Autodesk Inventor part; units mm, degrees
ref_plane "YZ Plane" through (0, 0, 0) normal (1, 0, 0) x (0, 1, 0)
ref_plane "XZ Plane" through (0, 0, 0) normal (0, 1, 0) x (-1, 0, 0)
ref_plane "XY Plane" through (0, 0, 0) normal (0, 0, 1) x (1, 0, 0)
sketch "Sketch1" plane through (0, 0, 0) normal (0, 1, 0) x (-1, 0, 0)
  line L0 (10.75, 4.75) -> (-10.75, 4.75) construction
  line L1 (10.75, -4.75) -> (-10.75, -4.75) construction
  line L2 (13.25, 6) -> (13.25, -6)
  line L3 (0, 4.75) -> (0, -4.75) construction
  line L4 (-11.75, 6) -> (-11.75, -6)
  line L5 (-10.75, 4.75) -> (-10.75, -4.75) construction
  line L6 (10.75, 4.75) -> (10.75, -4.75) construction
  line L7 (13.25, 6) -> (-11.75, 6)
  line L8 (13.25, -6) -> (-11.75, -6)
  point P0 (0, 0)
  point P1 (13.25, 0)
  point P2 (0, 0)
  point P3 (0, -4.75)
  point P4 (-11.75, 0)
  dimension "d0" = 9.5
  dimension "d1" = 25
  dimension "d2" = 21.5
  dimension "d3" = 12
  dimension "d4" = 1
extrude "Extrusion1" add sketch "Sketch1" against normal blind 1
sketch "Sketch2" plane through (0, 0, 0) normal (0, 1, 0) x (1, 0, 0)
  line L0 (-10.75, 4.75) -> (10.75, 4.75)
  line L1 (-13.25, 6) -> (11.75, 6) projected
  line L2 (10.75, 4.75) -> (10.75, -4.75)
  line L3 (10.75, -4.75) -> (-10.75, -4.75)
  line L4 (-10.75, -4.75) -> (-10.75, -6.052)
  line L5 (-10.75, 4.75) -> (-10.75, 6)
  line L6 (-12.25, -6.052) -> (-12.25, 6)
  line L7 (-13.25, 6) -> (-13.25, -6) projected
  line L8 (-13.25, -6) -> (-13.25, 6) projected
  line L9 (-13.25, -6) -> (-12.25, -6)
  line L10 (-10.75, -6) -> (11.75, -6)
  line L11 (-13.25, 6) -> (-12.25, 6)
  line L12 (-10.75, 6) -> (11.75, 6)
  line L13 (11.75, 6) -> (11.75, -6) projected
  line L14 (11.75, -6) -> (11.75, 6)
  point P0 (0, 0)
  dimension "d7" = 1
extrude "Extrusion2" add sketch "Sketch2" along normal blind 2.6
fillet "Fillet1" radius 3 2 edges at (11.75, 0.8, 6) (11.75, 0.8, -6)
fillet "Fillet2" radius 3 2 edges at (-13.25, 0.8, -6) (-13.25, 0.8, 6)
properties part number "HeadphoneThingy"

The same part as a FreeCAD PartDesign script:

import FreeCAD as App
import Part
import Sketcher

V = App.Vector


def edges_at(feature, points):
    """Names of the edges that pass closest to the given points."""
    edges = feature.Shape.Edges
    near = lambda p: min(range(len(edges)), key=lambda i: edges[i].distToShape(Part.Vertex(*p))[0])
    return sorted({f"Edge{near(p) + 1}" for p in points})


def add_polygon(sketch, points):
    """Adds a closed chain of lines whose ends are joined by coincident constraints."""
    first, n = sketch.GeometryCount, len(points)
    for a, b in zip(points, points[1:] + points[:1]):
        sketch.addGeometry(Part.LineSegment(App.Vector(*a, 0), App.Vector(*b, 0)), False)
    for i in range(n):
        sketch.addConstraint(Sketcher.Constraint("Coincident", first + i, 2, first + (i + 1) % n, 1))

doc = App.newDocument("Part")
params = doc.addObject("Spreadsheet::Sheet", "Params")
for row, (alias, value) in enumerate([
    ("sketch1_width", "25 mm"),
    ("sketch1_height", "12 mm"),
    ("pad1_length", "1 mm"),
    ("sketch2_width", "1 mm"),
    ("sketch2_height", "12 mm"),
    ("sketch2_width2", "21.5 mm"),
    ("sketch2_height2", "9.5 mm"),
    ("pad2_length", "2.6 mm"),
    ("fillet_radius", "3 mm"),
    ("fillet2_radius", "3 mm"),
], start=1):
    params.set(f"A{row}", alias)
    params.set(f"B{row}", "=" + value)
    params.setAlias(f"B{row}", alias)

body = doc.addObject("PartDesign::Body", "Body")

sketch1 = doc.addObject("Sketcher::SketchObject", "Sketch")
body.addObject(sketch1)
sketch1.AttachmentSupport = (doc.XZ_Plane, [""])
sketch1.MapMode = "FlatFace"
add_polygon(sketch1, [(-13.25, -6), (-13.25, 6), (11.75, 6), (11.75, -6)])
sketch1.addConstraint([
    Sketcher.Constraint("Vertical", 0),
    Sketcher.Constraint("Horizontal", 1),
    Sketcher.Constraint("Vertical", 2),
    Sketcher.Constraint("Horizontal", 3),
    Sketcher.Constraint("DistanceX", 1, 1, 1, 2, 25.0),
    Sketcher.Constraint("DistanceY", 0, 1, 0, 2, 12.0),
    Sketcher.Constraint("DistanceY", -1, 1, 0, 2, 6.0),
    Sketcher.Constraint("DistanceX", 0, 2, -1, 1, 13.25),
])
sketch1.setExpression("Constraints[8]", "Params.sketch1_width")
sketch1.setExpression("Constraints[9]", "Params.sketch1_height")
pad1 = doc.addObject("PartDesign::Pad", "Pad")
body.addObject(pad1)
pad1.Profile = sketch1
pad1.setExpression("Length", "Params.pad1_length")

sketch2 = doc.addObject("Sketcher::SketchObject", "Sketch001")
body.addObject(sketch2)
sketch2.AttachmentSupport = (doc.XZ_Plane, [""])
sketch2.MapMode = "FlatFace"
add_polygon(sketch2, [(-10.75, -6), (-10.75, -4.75), (10.75, -4.75), (10.75, 4.75), (-10.75, 4.75), (-10.75, 6), (11.75, 6), (11.75, -6)])
add_polygon(sketch2, [(-12.25, 6), (-12.25, -6), (-13.25, -6), (-13.25, 6)])
sketch2.addConstraint([
    Sketcher.Constraint("Vertical", 0),
    Sketcher.Constraint("Horizontal", 1),
    Sketcher.Constraint("Vertical", 2),
    Sketcher.Constraint("Horizontal", 3),
    Sketcher.Constraint("Vertical", 4),
    Sketcher.Constraint("Horizontal", 5),
    Sketcher.Constraint("Vertical", 6),
    Sketcher.Constraint("Horizontal", 7),
    Sketcher.Constraint("Vertical", 8),
    Sketcher.Constraint("Horizontal", 9),
    Sketcher.Constraint("Vertical", 10),
    Sketcher.Constraint("Horizontal", 11),
    Sketcher.Constraint("Symmetric", 0, 2, 2, 2, -1, 1),
    Sketcher.Constraint("Symmetric", 4, 2, 7, 2, -1),
    Sketcher.Constraint("Horizontal", 7, 2, 8, 2),
    Sketcher.Constraint("Horizontal", 5, 2, 10, 2),
    Sketcher.Constraint("DistanceX", 9, 2, 9, 1, 1.0),
    Sketcher.Constraint("DistanceX", 2, 2, 5, 2, 1.0),
    Sketcher.Constraint("DistanceY", 6, 2, 6, 1, 12.0),
    Sketcher.Constraint("DistanceX", 1, 1, 1, 2, 21.5),
    Sketcher.Constraint("DistanceY", 2, 1, 2, 2, 9.5),
    Sketcher.Constraint("DistanceX", 8, 2, 1, 2, 23.0),
])
sketch2.setExpression("Constraints[28]", "Params.sketch2_width")
sketch2.setExpression("Constraints[30]", "Params.sketch2_height")
sketch2.setExpression("Constraints[31]", "Params.sketch2_width2")
sketch2.setExpression("Constraints[32]", "Params.sketch2_height2")
pad2 = doc.addObject("PartDesign::Pad", "Pad001")
body.addObject(pad2)
pad2.Profile = sketch2
pad2.setExpression("Length", "Params.pad2_length")
pad2.Reversed = True
doc.recompute()

fillet = doc.addObject("PartDesign::Fillet", "Fillet")
body.addObject(fillet)
fillet.Base = (pad2, edges_at(pad2, [(11.75, 0.8, 6), (11.75, 0.8, -6)]))
fillet.setExpression("Radius", "Params.fillet_radius")
doc.recompute()

fillet2 = doc.addObject("PartDesign::Fillet", "Fillet001")
body.addObject(fillet2)
fillet2.Base = (fillet, edges_at(fillet, [(-13.25, 0.8, -6), (-13.25, 0.8, 6)]))
fillet2.setExpression("Radius", "Params.fillet2_radius")

doc.recompute()
